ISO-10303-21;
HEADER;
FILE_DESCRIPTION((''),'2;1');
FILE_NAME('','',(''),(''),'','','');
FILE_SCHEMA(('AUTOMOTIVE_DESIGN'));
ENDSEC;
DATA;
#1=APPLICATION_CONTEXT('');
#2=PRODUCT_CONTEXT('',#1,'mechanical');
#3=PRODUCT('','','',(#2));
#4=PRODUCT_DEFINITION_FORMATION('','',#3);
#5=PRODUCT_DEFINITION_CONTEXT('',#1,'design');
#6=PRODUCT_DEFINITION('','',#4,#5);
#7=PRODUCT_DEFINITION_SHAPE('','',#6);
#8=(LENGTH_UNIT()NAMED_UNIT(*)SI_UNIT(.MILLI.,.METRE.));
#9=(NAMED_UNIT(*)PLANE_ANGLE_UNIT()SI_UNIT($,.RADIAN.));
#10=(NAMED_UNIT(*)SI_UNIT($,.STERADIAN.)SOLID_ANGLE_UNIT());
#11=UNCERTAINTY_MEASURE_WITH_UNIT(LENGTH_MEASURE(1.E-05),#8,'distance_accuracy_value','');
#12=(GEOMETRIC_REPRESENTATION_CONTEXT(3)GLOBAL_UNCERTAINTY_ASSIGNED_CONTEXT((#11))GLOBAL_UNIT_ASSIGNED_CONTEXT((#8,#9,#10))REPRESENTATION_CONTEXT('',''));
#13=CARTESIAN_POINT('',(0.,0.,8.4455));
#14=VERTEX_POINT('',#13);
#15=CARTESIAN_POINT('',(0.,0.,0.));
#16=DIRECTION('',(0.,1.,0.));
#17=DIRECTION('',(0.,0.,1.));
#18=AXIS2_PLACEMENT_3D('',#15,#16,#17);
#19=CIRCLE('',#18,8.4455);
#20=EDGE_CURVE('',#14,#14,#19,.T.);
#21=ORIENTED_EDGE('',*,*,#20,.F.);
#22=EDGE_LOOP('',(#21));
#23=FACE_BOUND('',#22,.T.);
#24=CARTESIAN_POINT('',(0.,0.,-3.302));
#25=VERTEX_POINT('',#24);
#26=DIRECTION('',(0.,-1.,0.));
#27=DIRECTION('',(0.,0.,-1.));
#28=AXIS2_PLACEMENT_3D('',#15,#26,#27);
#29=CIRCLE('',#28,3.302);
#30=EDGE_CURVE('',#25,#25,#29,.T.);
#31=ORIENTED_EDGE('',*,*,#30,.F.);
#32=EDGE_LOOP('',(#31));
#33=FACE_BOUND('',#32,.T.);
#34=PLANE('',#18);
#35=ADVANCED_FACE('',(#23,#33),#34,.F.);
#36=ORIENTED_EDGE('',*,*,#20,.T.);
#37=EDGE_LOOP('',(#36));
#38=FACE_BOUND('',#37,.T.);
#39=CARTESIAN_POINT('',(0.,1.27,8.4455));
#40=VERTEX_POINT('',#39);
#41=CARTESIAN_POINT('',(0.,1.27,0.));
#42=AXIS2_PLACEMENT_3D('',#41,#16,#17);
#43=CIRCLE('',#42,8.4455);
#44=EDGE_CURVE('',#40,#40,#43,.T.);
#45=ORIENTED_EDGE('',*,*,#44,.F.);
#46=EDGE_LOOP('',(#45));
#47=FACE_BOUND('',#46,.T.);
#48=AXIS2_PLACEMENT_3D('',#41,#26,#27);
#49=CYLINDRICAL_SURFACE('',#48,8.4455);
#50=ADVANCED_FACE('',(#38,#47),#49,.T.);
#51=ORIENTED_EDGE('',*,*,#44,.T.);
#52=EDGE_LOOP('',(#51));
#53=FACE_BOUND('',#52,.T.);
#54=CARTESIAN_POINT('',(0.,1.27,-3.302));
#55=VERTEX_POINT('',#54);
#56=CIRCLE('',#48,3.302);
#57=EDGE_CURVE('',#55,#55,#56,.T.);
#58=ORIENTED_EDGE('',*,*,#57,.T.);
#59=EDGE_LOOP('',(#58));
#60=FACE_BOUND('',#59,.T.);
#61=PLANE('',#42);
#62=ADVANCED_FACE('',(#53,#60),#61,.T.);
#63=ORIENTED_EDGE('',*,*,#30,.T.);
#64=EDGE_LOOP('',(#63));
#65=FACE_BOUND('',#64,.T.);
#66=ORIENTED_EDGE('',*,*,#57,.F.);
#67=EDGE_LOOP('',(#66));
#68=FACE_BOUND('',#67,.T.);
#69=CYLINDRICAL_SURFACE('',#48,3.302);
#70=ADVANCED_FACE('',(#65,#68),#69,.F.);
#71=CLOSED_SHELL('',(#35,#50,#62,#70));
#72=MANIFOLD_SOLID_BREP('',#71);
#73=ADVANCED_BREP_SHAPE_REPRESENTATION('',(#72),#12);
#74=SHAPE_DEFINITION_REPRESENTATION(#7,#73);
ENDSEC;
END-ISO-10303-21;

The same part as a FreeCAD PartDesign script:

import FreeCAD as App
import Part
import Sketcher
from FreeCAD import Vector
Q = App.Units.Quantity

doc = App.newDocument("Part")
params = doc.addObject("Spreadsheet::Sheet", "Params")
for row, (alias, value) in enumerate([
    ("sketch1_diameter", "0.665 in"),
    ("pad1_length", "0.05 in"),
    ("sketch2_diameter", "0.26 in"),
], start=1):
    params.set(f"A{row}", alias)
    params.set(f"B{row}", "=" + value)
    params.setAlias(f"B{row}", alias)

body = doc.addObject("PartDesign::Body", "Body")

sketch1 = doc.addObject("Sketcher::SketchObject", "Sketch")
body.addObject(sketch1)
sketch1.AttachmentSupport = (doc.XZ_Plane, [""])
sketch1.MapMode = "FlatFace"
sketch1.addGeometry(Part.Circle(Vector(0, 0, 0), Vector(0, 0, 1), 8), False)
sketch1.addConstraint([
    Sketcher.Constraint("Coincident", 0, 3, -1, 1),
    Sketcher.Constraint("Diameter", 0, Q("0.665 in")),
])
sketch1.setExpression("Constraints[1]", "Params.sketch1_diameter")
pad1 = doc.addObject("PartDesign::Pad", "Pad")
body.addObject(pad1)
pad1.Profile = sketch1
pad1.setExpression("Length", "Params.pad1_length")
pad1.Reversed = True

sketch2 = doc.addObject("Sketcher::SketchObject", "Sketch001")
body.addObject(sketch2)
sketch2.AttachmentSupport = (doc.XZ_Plane, [""])
sketch2.MapMode = "FlatFace"
sketch2.addGeometry(Part.Circle(Vector(0, 0, 0), Vector(0, 0, 1), 3.3), False)
sketch2.addConstraint([
    Sketcher.Constraint("Coincident", 0, 3, -1, 1),
    Sketcher.Constraint("Diameter", 0, Q("0.26 in")),
])
sketch2.setExpression("Constraints[1]", "Params.sketch2_diameter")
pocket1 = doc.addObject("PartDesign::Pocket", "Pocket")
body.addObject(pocket1)
pocket1.Profile = sketch2
pocket1.Type = "ThroughAll"

doc.recompute()
